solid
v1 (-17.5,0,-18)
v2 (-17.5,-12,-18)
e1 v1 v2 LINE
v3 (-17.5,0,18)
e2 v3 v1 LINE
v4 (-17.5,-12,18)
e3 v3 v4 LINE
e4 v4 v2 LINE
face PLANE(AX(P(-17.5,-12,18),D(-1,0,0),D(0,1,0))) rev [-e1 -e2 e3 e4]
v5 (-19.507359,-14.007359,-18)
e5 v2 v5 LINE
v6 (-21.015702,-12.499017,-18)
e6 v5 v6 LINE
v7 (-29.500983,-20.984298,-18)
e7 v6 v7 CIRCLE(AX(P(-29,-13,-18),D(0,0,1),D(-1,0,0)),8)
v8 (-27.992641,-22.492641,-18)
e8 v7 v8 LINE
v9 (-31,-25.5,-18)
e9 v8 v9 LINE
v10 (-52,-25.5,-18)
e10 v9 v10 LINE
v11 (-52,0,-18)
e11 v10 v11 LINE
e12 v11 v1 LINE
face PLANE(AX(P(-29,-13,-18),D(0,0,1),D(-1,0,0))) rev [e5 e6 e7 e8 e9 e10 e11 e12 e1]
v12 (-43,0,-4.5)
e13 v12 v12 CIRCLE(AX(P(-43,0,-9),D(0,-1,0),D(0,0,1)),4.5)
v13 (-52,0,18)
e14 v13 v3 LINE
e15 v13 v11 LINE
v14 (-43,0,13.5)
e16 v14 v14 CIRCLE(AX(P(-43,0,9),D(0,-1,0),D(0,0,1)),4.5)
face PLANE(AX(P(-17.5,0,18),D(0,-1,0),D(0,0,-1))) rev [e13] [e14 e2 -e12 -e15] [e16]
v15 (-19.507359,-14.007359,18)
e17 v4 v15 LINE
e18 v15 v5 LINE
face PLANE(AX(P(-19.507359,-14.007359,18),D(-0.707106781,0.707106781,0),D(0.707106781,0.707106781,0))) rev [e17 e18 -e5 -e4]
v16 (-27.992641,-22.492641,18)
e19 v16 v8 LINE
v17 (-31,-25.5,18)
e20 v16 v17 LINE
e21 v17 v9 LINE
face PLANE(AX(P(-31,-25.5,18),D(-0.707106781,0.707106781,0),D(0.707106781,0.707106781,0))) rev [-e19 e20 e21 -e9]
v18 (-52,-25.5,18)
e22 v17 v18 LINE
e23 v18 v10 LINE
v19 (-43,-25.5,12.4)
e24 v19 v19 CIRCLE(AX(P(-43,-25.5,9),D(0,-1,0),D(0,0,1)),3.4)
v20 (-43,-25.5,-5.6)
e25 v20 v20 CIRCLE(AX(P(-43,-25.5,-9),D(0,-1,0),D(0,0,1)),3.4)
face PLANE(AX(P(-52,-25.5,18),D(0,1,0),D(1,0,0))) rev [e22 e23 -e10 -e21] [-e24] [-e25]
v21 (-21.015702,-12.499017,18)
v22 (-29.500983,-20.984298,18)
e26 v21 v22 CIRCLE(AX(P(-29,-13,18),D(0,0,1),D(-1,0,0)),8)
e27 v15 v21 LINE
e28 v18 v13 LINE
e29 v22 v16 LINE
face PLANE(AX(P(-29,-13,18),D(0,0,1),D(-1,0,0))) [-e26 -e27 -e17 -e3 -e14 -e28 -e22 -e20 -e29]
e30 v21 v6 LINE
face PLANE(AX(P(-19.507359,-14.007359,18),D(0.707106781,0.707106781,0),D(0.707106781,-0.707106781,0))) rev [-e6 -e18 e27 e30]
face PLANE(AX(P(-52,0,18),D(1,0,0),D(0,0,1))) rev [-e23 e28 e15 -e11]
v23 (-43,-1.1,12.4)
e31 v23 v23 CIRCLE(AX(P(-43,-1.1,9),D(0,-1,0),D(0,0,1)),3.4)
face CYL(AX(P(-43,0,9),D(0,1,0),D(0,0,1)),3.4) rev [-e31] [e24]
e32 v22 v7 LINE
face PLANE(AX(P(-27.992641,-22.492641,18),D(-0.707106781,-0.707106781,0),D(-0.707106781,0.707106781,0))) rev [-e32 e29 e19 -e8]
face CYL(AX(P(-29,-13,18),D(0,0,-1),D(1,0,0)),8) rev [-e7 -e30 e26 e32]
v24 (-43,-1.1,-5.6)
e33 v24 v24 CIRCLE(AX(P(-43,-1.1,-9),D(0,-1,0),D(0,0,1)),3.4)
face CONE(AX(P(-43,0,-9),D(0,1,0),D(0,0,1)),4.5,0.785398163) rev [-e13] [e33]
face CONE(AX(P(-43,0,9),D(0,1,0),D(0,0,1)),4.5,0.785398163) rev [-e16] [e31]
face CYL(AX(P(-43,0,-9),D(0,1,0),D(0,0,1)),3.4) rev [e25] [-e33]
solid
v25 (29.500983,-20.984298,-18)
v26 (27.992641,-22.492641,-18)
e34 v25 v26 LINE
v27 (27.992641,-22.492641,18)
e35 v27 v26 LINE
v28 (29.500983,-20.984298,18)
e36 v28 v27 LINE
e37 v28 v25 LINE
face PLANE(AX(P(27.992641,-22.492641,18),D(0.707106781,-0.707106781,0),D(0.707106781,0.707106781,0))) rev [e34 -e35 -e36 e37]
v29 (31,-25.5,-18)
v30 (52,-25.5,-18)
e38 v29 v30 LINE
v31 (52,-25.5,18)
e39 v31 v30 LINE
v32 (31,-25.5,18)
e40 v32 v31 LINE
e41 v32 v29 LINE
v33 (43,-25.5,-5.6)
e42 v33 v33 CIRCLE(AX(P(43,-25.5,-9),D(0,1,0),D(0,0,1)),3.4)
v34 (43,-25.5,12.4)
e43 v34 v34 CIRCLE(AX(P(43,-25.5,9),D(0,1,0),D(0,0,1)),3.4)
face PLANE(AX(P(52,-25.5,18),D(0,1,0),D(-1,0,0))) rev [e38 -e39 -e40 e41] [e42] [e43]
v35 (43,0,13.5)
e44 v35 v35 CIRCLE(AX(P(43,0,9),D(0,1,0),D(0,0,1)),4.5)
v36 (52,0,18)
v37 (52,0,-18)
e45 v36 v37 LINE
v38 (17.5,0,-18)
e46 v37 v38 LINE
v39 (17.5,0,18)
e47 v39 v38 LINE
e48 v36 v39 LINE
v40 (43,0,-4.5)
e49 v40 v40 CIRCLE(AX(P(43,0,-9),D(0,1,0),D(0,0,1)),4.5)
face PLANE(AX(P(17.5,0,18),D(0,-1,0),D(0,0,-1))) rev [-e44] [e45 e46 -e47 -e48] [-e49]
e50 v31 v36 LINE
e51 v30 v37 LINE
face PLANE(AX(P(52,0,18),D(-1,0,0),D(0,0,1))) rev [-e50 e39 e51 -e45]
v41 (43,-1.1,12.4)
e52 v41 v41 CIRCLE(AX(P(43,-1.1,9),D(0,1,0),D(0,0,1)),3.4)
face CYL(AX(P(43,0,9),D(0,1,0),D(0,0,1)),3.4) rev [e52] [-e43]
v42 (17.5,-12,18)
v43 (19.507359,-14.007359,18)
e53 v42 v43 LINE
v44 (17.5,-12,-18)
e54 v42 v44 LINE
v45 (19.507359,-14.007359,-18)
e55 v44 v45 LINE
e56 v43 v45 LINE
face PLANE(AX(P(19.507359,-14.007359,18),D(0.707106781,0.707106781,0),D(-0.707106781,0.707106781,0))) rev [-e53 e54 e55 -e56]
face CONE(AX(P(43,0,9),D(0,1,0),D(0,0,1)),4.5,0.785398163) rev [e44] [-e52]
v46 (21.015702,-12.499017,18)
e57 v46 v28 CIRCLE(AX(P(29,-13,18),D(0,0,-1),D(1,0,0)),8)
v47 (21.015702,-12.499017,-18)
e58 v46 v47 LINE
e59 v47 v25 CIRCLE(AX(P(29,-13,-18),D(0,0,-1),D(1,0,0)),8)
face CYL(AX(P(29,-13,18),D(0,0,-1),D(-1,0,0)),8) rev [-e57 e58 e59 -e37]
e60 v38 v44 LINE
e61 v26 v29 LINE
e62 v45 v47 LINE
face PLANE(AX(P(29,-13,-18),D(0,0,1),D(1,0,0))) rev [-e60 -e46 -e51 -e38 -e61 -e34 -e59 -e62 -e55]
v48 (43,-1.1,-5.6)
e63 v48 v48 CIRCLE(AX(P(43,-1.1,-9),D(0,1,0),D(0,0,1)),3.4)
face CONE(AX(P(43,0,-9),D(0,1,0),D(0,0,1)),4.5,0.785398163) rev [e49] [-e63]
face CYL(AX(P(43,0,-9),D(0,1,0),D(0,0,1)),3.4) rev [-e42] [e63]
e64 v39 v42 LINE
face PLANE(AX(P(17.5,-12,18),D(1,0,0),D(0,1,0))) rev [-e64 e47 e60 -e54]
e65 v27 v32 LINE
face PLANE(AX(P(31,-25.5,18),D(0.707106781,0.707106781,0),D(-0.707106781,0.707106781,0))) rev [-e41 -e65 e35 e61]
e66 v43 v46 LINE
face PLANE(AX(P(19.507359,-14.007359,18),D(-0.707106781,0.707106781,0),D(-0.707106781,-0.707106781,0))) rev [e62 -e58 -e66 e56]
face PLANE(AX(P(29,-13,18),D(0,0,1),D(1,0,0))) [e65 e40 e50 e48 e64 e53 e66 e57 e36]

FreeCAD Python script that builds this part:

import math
import FreeCAD as App
import Part
import Sketcher
Q = App.Units.Quantity

doc = App.newDocument("Part")
body = doc.addObject("PartDesign::Body", "Body")

sketch1 = body.newObject("Sketcher::SketchObject", "Sketch")
sketch1.AttachmentSupport = (doc.getObject("XY_Plane"), [""])
sketch1.MapMode = "FlatFace"
sketch1.addGeometry(Part.LineSegment(App.Vector(17.5, -12, 0), App.Vector(19.5, -14, 0)), False)
sketch1.addGeometry(Part.LineSegment(App.Vector(19.5, -14, 0), App.Vector(21, -12.5, 0)), False)
sketch1.addGeometry(Part.ArcOfCircle(Part.Circle(App.Vector(29, -13, 0), App.Vector(0, 0, 1), 8), math.radians(-86), math.radians(176)), False)
sketch1.addGeometry(Part.LineSegment(App.Vector(29.5, -21, 0), App.Vector(28, -22.5, 0)), False)
sketch1.addGeometry(Part.LineSegment(App.Vector(28, -22.5, 0), App.Vector(31, -25.5, 0)), False)
sketch1.addGeometry(Part.LineSegment(App.Vector(31, -25.5, 0), App.Vector(52, -25.5, 0)), False)
sketch1.addGeometry(Part.LineSegment(App.Vector(52, -25.5, 0), App.Vector(52, 0, 0)), False)
sketch1.addGeometry(Part.LineSegment(App.Vector(52, 0, 0), App.Vector(17.5, 0, 0)), False)
sketch1.addGeometry(Part.LineSegment(App.Vector(17.5, 0, 0), App.Vector(17.5, -12, 0)), False)
sketch1.addConstraint(Sketcher.Constraint("Coincident", 0, 2, 1, 1))
sketch1.addConstraint(Sketcher.Constraint("Coincident", 1, 2, 2, 2))
sketch1.addConstraint(Sketcher.Constraint("Coincident", 2, 1, 3, 1))
sketch1.addConstraint(Sketcher.Constraint("Coincident", 3, 2, 4, 1))
sketch1.addConstraint(Sketcher.Constraint("Coincident", 4, 2, 5, 1))
sketch1.addConstraint(Sketcher.Constraint("Coincident", 5, 2, 6, 1))
sketch1.addConstraint(Sketcher.Constraint("Coincident", 6, 2, 7, 1))
sketch1.addConstraint(Sketcher.Constraint("Coincident", 7, 2, 8, 1))
sketch1.addConstraint(Sketcher.Constraint("Coincident", 8, 2, 0, 1))
sketch1.addConstraint(Sketcher.Constraint("Horizontal", 5))
sketch1.addConstraint(Sketcher.Constraint("Vertical", 6))
sketch1.addConstraint(Sketcher.Constraint("Horizontal", 7))
sketch1.addConstraint(Sketcher.Constraint("Vertical", 8))
sketch1.addConstraint(Sketcher.Constraint("PointOnObject", 6, 2, -1))
sketch1.addConstraint(Sketcher.Constraint("Perpendicular", 0, 1))
sketch1.addConstraint(Sketcher.Constraint("Parallel", 1, 3))
sketch1.addConstraint(Sketcher.Constraint("Perpendicular", 3, 4))
sketch1.addConstraint(Sketcher.Constraint("Equal", 1, 3))
sketch1.addConstraint(Sketcher.Constraint("Radius", 2, 8.0))
sketch1.addConstraint(Sketcher.Constraint("DistanceX", 5, 1, 5, 2, 21.0))
sketch1.addConstraint(Sketcher.Constraint("DistanceY", 8, 2, 8, 1, 12.0))
sketch1.addConstraint(Sketcher.Constraint("Angle", 0, Q("-45 deg")))
sketch1.addConstraint(Sketcher.Constraint("DistanceX", 7, 2, 7, 1, 34.5))
sketch1.addConstraint(Sketcher.Constraint("DistanceY", 6, 1, 6, 2, 25.5))
sketch1.addConstraint(Sketcher.Constraint("DistanceX", -1, 1, 2, 3, 29.0))
sketch1.addConstraint(Sketcher.Constraint("DistanceY", 2, 3, -1, 1, 13.0))
sketch1.addConstraint(Sketcher.Constraint("DistanceX", -1, 1, 4, 2, 31.0))
sketch1.addConstraint(Sketcher.Constraint("DistanceX", -1, 1, 1, 2, 21.015702))
pad1 = body.newObject("PartDesign::Pad", "Pad")
pad1.Profile = sketch1
pad1.Length = 36
pad1.Midplane = True

sketch2 = body.newObject("Sketcher::SketchObject", "Sketch001")
sketch2.AttachmentSupport = (doc.getObject("XZ_Plane"), [""])
sketch2.MapMode = "FlatFace"
sketch2.addGeometry(Part.Circle(App.Vector(43, -9, 0), App.Vector(0, 0, 1), 3.4), False)
sketch2.addGeometry(Part.Circle(App.Vector(43, 9, 0), App.Vector(0, 0, 1), 3.4), False)
sketch2.addConstraint(Sketcher.Constraint("Equal", 0, 1))
sketch2.addConstraint(Sketcher.Constraint("Symmetric", 0, 3, 1, 3, -1))
sketch2.addConstraint(Sketcher.Constraint("Diameter", 0, 6.8))
sketch2.addConstraint(Sketcher.Constraint("DistanceX", -1, 1, 0, 3, 43.0))
sketch2.addConstraint(Sketcher.Constraint("DistanceY", 0, 3, -1, 1, 9.0))
doc.recompute()
hole = body.newObject("PartDesign::Hole", "Hole")
hole.Profile = sketch2
hole.ThreadType = "None"
hole.Diameter = 6.8
hole.DepthType = "ThroughAll"
hole.HoleCutType = "Countersink"
hole.HoleCutDiameter = 9
hole.HoleCutCountersinkAngle = 90
hole.Reversed = True
body2 = doc.addObject("PartDesign::Body", "Body001")
doc.recompute()

mirroring = doc.addObject("Part::Mirroring", "Mirroring")
mirroring.Source = body
mirroring.Base = App.Vector(0, 0, 0)
mirroring.Normal = App.Vector(1, 0, 0)
body2.BaseFeature = mirroring
doc.recompute()
mirroring.Visibility = False

doc.recompute()
